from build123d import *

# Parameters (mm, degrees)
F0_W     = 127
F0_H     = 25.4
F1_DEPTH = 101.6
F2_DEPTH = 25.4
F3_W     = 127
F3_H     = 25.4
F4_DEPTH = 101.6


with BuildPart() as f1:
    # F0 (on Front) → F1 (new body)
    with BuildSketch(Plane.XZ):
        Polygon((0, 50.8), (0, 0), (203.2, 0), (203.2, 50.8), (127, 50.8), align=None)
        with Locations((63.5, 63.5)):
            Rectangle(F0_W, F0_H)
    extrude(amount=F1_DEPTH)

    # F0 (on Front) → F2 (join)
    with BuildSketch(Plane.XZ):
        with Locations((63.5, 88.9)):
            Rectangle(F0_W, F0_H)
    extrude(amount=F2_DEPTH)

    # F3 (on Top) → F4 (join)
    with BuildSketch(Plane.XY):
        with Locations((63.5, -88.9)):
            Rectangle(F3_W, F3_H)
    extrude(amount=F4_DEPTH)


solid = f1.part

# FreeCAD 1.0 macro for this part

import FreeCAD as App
import Part
import Sketcher
Q = App.Units.Quantity

doc = App.newDocument("Part")
body = doc.addObject("PartDesign::Body", "Body")

# Sketch on XZ plane
sketch1 = body.newObject("Sketcher::SketchObject", "Sketch")
sketch1.AttachmentSupport = (doc.getObject("XZ_Plane"), [""])
sketch1.MapMode = "FlatFace"
sketch1.addGeometry([
    Part.LineSegment(App.Vector(0, 0, 0), App.Vector(203, 0, 0)),  # 0
    Part.LineSegment(App.Vector(203, 0, 0), App.Vector(203, 51, 0)),  # 1
    Part.LineSegment(App.Vector(203, 51, 0), App.Vector(127, 51, 0)),  # 2
    Part.LineSegment(App.Vector(127, 51, 0), App.Vector(127, 76, 0)),  # 3
    Part.LineSegment(App.Vector(127, 76, 0), App.Vector(0, 76, 0)),  # 4
    Part.LineSegment(App.Vector(0, 76, 0), App.Vector(0, 0, 0)),  # 5
], False)
sketch1.addConstraint([
    Sketcher.Constraint("Coincident", 0, 2, 1, 1),
    Sketcher.Constraint("Coincident", 1, 2, 2, 1),
    Sketcher.Constraint("Coincident", 2, 2, 3, 1),
    Sketcher.Constraint("Coincident", 3, 2, 4, 1),
    Sketcher.Constraint("Coincident", 4, 2, 5, 1),
    Sketcher.Constraint("Coincident", 5, 2, 0, 1),
    Sketcher.Constraint("Horizontal", 0),
    Sketcher.Constraint("Vertical", 1),
    Sketcher.Constraint("Horizontal", 2),
    Sketcher.Constraint("Vertical", 3),
    Sketcher.Constraint("Horizontal", 4),
    Sketcher.Constraint("Vertical", 5),
    Sketcher.Constraint("Coincident", 5, 2, -1, 1),
    Sketcher.Constraint("Equal", 2, 5),
    Sketcher.Constraint("DistanceX", 0, 1, 0, 2, Q("8 in")),
    Sketcher.Constraint("DistanceX", 2, 2, 2, 1, Q("3 in")),
    Sketcher.Constraint("DistanceY", 1, 1, 1, 2, Q("2 in")),
])
pad1 = body.newObject("PartDesign::Pad", "Pad")
pad1.Profile = sketch1
pad1.Length = Q("4 in")

# Sketch on XZ plane
sketch2 = body.newObject("Sketcher::SketchObject", "Sketch001")
sketch2.AttachmentSupport = (doc.getObject("XZ_Plane"), [""])
sketch2.MapMode = "FlatFace"
sketch2.addGeometry([
    Part.LineSegment(App.Vector(0, 102, 0), App.Vector(0, 76, 0)),
    Part.LineSegment(App.Vector(0, 76, 0), App.Vector(127, 76, 0)),
    Part.LineSegment(App.Vector(127, 76, 0), App.Vector(127, 102, 0)),
    Part.LineSegment(App.Vector(127, 102, 0), App.Vector(0, 102, 0)),
], False)
sketch2.addConstraint([
    Sketcher.Constraint("Coincident", 0, 2, 1, 1),
    Sketcher.Constraint("Coincident", 1, 2, 2, 1),
    Sketcher.Constraint("Coincident", 2, 2, 3, 1),
    Sketcher.Constraint("Coincident", 3, 2, 0, 1),
    Sketcher.Constraint("Vertical", 0),
    Sketcher.Constraint("Horizontal", 1),
    Sketcher.Constraint("Vertical", 2),
    Sketcher.Constraint("Horizontal", 3),
    Sketcher.Constraint("PointOnObject", 0, 2, -2),
    Sketcher.Constraint("DistanceX", 1, 1, 1, 2, Q("5 in")),
    Sketcher.Constraint("DistanceY", 0, 2, 0, 1, Q("1 in")),
    Sketcher.Constraint("DistanceY", -1, 1, 0, 2, Q("3 in")),
])
pad2 = body.newObject("PartDesign::Pad", "Pad001")
pad2.Profile = sketch2
pad2.Length = Q("1 in")

# Sketch on XY plane
sketch3 = body.newObject("Sketcher::SketchObject", "Sketch002")
sketch3.AttachmentSupport = (doc.getObject("XY_Plane"), [""])
sketch3.MapMode = "FlatFace"
sketch3.addGeometry([
    Part.LineSegment(App.Vector(0, -76, 0), App.Vector(0, -102, 0)),
    Part.LineSegment(App.Vector(0, -102, 0), App.Vector(127, -102, 0)),
    Part.LineSegment(App.Vector(127, -102, 0), App.Vector(127, -76, 0)),
    Part.LineSegment(App.Vector(127, -76, 0), App.Vector(0, -76, 0)),
], False)
sketch3.addConstraint([
    Sketcher.Constraint("Coincident", 0, 2, 1, 1),
    Sketcher.Constraint("Coincident", 1, 2, 2, 1),
    Sketcher.Constraint("Coincident", 2, 2, 3, 1),
    Sketcher.Constraint("Coincident", 3, 2, 0, 1),
    Sketcher.Constraint("Vertical", 0),
    Sketcher.Constraint("Horizontal", 1),
    Sketcher.Constraint("Vertical", 2),
    Sketcher.Constraint("Horizontal", 3),
    Sketcher.Constraint("PointOnObject", 0, 2, -2),
    Sketcher.Constraint("DistanceX", 1, 1, 1, 2, Q("5 in")),
    Sketcher.Constraint("DistanceY", 0, 2, 0, 1, Q("1 in")),
    Sketcher.Constraint("DistanceY", 0, 2, -1, 1, Q("4 in")),
])
pad3 = body.newObject("PartDesign::Pad", "Pad002")
pad3.Profile = sketch3
pad3.Length = Q("4 in")

doc.recompute()
